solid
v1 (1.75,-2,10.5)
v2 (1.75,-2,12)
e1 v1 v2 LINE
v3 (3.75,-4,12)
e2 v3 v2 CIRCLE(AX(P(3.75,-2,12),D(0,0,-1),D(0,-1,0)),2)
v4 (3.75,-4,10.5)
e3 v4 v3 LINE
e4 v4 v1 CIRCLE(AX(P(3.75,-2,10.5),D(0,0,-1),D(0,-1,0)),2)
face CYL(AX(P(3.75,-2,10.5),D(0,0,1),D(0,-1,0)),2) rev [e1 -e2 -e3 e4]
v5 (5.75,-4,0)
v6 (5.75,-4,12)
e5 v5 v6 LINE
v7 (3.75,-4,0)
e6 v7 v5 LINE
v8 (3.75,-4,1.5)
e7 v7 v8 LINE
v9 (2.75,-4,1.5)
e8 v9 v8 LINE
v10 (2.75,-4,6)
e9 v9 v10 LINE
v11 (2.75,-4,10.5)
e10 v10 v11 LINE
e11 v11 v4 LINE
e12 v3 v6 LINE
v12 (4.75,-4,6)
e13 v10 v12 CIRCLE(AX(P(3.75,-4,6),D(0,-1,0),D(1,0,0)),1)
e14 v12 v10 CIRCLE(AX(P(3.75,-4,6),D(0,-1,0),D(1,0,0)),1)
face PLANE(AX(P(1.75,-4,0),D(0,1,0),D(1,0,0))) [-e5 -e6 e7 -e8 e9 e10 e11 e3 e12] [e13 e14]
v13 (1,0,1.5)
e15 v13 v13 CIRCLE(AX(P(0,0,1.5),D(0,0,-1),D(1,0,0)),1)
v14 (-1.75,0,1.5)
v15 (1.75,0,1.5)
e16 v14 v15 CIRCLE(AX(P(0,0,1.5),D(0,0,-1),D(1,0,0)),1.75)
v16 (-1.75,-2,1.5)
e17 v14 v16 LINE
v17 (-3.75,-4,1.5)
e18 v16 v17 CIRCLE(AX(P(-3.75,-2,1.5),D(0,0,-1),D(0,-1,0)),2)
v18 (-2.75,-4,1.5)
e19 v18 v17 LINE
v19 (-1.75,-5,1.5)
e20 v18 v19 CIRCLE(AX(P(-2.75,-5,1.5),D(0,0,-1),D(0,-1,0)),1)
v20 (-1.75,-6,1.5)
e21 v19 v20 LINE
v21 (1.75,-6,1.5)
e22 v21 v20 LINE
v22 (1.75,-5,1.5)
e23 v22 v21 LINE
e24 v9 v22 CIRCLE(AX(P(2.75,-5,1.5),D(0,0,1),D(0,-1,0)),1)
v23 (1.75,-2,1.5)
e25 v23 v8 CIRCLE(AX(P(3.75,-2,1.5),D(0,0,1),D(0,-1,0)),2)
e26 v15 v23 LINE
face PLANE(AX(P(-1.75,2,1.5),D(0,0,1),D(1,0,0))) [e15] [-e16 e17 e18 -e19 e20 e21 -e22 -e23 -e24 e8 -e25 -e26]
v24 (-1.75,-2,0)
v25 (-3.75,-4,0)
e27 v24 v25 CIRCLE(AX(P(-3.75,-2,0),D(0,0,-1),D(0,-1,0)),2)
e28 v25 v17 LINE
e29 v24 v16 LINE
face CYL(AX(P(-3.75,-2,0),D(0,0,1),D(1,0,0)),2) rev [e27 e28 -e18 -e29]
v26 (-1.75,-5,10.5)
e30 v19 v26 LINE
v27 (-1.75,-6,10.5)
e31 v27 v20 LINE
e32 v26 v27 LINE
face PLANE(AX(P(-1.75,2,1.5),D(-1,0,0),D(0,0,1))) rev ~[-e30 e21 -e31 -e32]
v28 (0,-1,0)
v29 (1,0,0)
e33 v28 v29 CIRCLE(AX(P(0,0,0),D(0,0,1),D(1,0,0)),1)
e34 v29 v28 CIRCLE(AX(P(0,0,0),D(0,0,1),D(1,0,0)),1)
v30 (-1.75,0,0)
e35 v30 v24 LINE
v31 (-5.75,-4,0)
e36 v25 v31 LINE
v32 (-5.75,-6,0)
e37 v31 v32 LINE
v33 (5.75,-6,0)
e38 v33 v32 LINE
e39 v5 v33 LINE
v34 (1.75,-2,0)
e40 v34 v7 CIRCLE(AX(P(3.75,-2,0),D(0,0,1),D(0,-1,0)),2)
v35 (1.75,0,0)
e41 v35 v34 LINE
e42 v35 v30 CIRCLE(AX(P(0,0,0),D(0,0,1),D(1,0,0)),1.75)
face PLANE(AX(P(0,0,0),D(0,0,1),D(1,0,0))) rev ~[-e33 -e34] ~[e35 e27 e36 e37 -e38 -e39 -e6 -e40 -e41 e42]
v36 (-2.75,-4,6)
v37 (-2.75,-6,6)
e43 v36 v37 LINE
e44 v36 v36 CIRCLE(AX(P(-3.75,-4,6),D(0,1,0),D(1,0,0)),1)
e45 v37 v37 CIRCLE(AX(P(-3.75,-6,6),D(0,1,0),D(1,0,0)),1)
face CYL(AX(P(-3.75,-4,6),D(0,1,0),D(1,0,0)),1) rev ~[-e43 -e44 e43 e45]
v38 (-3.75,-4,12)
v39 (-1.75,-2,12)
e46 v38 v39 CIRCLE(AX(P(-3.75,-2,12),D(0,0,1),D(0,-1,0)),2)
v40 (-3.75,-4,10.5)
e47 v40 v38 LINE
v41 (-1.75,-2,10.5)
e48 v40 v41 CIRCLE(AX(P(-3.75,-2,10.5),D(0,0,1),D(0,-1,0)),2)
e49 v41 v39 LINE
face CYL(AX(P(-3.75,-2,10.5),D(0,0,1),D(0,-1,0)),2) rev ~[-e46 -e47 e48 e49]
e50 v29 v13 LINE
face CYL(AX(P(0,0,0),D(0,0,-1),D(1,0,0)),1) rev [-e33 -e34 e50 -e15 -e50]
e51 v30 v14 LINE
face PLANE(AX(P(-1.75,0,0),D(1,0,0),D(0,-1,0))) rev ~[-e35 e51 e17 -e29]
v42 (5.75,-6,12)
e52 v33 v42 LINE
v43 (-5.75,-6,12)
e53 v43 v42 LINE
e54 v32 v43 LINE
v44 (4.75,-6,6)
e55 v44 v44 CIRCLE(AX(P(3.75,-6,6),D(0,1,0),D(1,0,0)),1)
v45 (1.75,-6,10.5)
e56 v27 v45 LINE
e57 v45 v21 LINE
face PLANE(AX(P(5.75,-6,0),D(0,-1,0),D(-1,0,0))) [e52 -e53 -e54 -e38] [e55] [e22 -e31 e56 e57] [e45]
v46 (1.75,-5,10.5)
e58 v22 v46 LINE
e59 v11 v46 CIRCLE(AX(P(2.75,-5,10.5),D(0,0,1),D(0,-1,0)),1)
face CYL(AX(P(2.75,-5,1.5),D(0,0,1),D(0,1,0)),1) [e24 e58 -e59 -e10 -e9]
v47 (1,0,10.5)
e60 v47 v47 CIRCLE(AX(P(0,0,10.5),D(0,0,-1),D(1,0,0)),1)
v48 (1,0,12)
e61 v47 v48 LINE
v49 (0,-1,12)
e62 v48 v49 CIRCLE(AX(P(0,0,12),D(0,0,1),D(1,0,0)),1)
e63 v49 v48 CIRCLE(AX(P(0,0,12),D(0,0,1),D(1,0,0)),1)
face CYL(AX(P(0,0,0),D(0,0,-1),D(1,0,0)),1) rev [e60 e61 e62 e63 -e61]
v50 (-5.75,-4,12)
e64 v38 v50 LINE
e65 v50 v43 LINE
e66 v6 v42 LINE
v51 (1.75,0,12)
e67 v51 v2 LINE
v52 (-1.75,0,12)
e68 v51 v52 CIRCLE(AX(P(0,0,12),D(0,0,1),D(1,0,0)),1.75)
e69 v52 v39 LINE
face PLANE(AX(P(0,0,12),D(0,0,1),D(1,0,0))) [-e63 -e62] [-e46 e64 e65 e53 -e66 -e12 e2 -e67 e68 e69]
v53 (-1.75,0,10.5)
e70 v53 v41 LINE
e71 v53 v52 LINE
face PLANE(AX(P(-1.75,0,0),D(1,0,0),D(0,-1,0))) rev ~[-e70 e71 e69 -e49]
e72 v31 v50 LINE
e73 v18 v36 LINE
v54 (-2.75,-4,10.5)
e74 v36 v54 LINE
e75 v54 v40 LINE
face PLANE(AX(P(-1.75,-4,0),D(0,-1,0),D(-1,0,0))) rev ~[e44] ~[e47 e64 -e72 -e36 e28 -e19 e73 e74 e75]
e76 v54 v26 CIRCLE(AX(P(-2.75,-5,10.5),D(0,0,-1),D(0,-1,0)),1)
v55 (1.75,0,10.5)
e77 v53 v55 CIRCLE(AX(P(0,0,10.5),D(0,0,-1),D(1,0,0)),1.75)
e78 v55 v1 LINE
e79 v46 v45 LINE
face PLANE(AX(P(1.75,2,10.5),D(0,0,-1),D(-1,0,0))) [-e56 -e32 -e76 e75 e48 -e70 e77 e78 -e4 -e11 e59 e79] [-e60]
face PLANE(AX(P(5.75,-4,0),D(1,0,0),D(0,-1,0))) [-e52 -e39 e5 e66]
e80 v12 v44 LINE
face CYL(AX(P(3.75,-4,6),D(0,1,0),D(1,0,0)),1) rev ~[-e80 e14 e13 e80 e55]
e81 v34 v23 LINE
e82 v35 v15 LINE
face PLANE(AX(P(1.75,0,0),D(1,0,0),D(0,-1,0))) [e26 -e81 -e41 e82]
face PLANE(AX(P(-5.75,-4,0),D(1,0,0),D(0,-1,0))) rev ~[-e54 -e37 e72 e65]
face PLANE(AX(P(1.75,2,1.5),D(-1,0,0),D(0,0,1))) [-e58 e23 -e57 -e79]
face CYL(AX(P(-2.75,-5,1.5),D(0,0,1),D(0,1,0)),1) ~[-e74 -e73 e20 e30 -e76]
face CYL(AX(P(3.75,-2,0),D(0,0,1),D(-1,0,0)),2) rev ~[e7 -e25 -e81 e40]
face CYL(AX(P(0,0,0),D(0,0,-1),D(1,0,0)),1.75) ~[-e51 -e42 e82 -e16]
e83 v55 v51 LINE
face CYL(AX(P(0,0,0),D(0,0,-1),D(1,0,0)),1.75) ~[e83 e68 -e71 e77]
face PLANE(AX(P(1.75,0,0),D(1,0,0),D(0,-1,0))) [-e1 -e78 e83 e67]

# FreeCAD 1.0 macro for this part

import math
import FreeCAD as App
import Part
import Sketcher
from FreeCAD import Vector


def edges_at(feature, points):
    """Names of the edges that pass closest to the given points."""
    edges = feature.Shape.Edges
    near = lambda p: min(range(len(edges)), key=lambda i: edges[i].distToShape(Part.Vertex(*p))[0])
    return sorted({f"Edge{near(p) + 1}" for p in points})


def add_polygon(sketch, points):
    """Adds a closed chain of lines whose ends are joined by coincident constraints."""
    first, n = sketch.GeometryCount, len(points)
    for a, b in zip(points, points[1:] + points[:1]):
        sketch.addGeometry(Part.LineSegment(App.Vector(*a, 0), App.Vector(*b, 0)), False)
    for i in range(n):
        sketch.addConstraint(Sketcher.Constraint("Coincident", first + i, 2, first + (i + 1) % n, 1))

doc = App.newDocument("Part")
body = doc.addObject("PartDesign::Body", "Body")

# Sketch on XY plane
sketch1 = doc.addObject("Sketcher::SketchObject", "Sketch")
body.addObject(sketch1)
sketch1.AttachmentSupport = (doc.XY_Plane, [""])
sketch1.MapMode = "FlatFace"
sketch1.addGeometry(Part.ArcOfCircle(Part.Circle(Vector(0, 0, 0), Vector(0, 0, 1), 1.8), math.radians(0), math.radians(180)), False)
sketch1.addGeometry(Part.LineSegment(Vector(-1.8, 0, 0), Vector(-1.8, -4, 0)), False)
sketch1.addGeometry(Part.LineSegment(Vector(-1.8, -4, 0), Vector(-5.8, -4, 0)), False)
sketch1.addGeometry(Part.LineSegment(Vector(-5.8, -4, 0), Vector(-5.8, -6, 0)), False)
sketch1.addGeometry(Part.LineSegment(Vector(-5.8, -6, 0), Vector(5.8, -6, 0)), False)
sketch1.addGeometry(Part.LineSegment(Vector(5.8, -6, 0), Vector(5.8, -4, 0)), False)
sketch1.addGeometry(Part.LineSegment(Vector(5.8, -4, 0), Vector(1.8, -4, 0)), False)
sketch1.addGeometry(Part.LineSegment(Vector(1.8, -4, 0), Vector(1.8, 0, 0)), False)
sketch1.addGeometry(Part.Circle(Vector(0, 0, 0), Vector(0, 0, 1), 1), False)
sketch1.addConstraint(Sketcher.Constraint("Tangent", 0, 2, 1, 1))
sketch1.addConstraint(Sketcher.Constraint("Coincident", 1, 2, 2, 1))
sketch1.addConstraint(Sketcher.Constraint("Coincident", 2, 2, 3, 1))
sketch1.addConstraint(Sketcher.Constraint("Coincident", 3, 2, 4, 1))
sketch1.addConstraint(Sketcher.Constraint("Coincident", 4, 2, 5, 1))
sketch1.addConstraint(Sketcher.Constraint("Coincident", 5, 2, 6, 1))
sketch1.addConstraint(Sketcher.Constraint("Coincident", 6, 2, 7, 1))
sketch1.addConstraint(Sketcher.Constraint("Tangent", 7, 2, 0, 1))
sketch1.addConstraint(Sketcher.Constraint("Vertical", 1))
sketch1.addConstraint(Sketcher.Constraint("Horizontal", 2))
sketch1.addConstraint(Sketcher.Constraint("Vertical", 3))
sketch1.addConstraint(Sketcher.Constraint("Horizontal", 4))
sketch1.addConstraint(Sketcher.Constraint("Vertical", 5))
sketch1.addConstraint(Sketcher.Constraint("Horizontal", 6))
sketch1.addConstraint(Sketcher.Constraint("Vertical", 7))
sketch1.addConstraint(Sketcher.Constraint("Coincident", 0, 3, -1, 1))
sketch1.addConstraint(Sketcher.Constraint("Coincident", 8, 3, -1, 1))
sketch1.addConstraint(Sketcher.Constraint("Symmetric", 2, 2, 5, 2, -2))
sketch1.addConstraint(Sketcher.Constraint("Equal", 6, 1))
sketch1.addConstraint(Sketcher.Constraint("Diameter", 8, 2.0))
sketch1.addConstraint(Sketcher.Constraint("DistanceX", 2, 2, 2, 1, 4.0))
sketch1.addConstraint(Sketcher.Constraint("DistanceY", 3, 2, 3, 1, 2.0))
sketch1.addConstraint(Sketcher.Constraint("Radius", 0, 1.75))
pad1 = doc.addObject("PartDesign::Pad", "Pad")
body.addObject(pad1)
pad1.Profile = sketch1
pad1.Length = 12

# Sketch on XZ plane
sketch2 = doc.addObject("Sketcher::SketchObject", "Sketch001")
body.addObject(sketch2)
sketch2.AttachmentSupport = (doc.XZ_Plane, [""])
sketch2.MapMode = "FlatFace"
sketch2.AttachmentOffset = App.Placement(Vector(0, 0, -2), App.Rotation())
add_polygon(sketch2, [(1.8, 10.5), (1.8, 1.5), (-1.8, 1.5), (-1.8, 10.5)])  # lines 0-3
sketch2.addConstraint(Sketcher.Constraint("Vertical", 0))
sketch2.addConstraint(Sketcher.Constraint("Horizontal", 1))
sketch2.addConstraint(Sketcher.Constraint("Vertical", 2))
sketch2.addConstraint(Sketcher.Constraint("Horizontal", 3))
sketch2.addConstraint(Sketcher.Constraint("DistanceY", 0, 2, 0, 1, 9.0))
sketch2.addConstraint(Sketcher.Constraint("DistanceX", 1, 2, 1, 1, 3.5))
sketch2.addConstraint(Sketcher.Constraint("DistanceY", -1, 1, 0, 2, 1.5))
sketch2.addConstraint(Sketcher.Constraint("DistanceX", -1, 1, 0, 2, 1.75))
pocket1 = doc.addObject("PartDesign::Pocket", "Pocket")
body.addObject(pocket1)
pocket1.Profile = sketch2
pocket1.Length = 12
pocket1.Reversed = True
doc.recompute()

fillet = doc.addObject("PartDesign::Fillet", "Fillet")
body.addObject(fillet)
fillet.Base = (pocket1, edges_at(pocket1, [
    (1.75, -4, 0.75),
    (1.75, -4, 11.25),
    (-1.75, -4, 0.75),
    (-1.75, -4, 11.25),
]))
fillet.Radius = 2
doc.recompute()

fillet2 = doc.addObject("PartDesign::Fillet", "Fillet001")
body.addObject(fillet2)
fillet2.Base = (fillet, edges_at(fillet, [(1.75, -4, 6), (-1.75, -4, 6)]))
fillet2.Radius = 1

# Sketch on XZ plane
sketch3 = doc.addObject("Sketcher::SketchObject", "Sketch002")
body.addObject(sketch3)
sketch3.AttachmentSupport = (doc.XZ_Plane, [""])
sketch3.MapMode = "FlatFace"
sketch3.AttachmentOffset = App.Placement(Vector(0, 0, 4), App.Rotation())
sketch3.addGeometry(Part.Circle(Vector(3.8, 6, 0), Vector(0, 0, 1), 1), False)
sketch3.addGeometry(Part.Circle(Vector(-3.8, 6, 0), Vector(0, 0, 1), 1), False)
sketch3.addConstraint(Sketcher.Constraint("Equal", 0, 1))
sketch3.addConstraint(Sketcher.Constraint("Symmetric", 0, 3, 1, 3, -2))
sketch3.addConstraint(Sketcher.Constraint("Diameter", 0, 2.0))
sketch3.addConstraint(Sketcher.Constraint("DistanceY", -1, 1, 0, 3, 6.0))
sketch3.addConstraint(Sketcher.Constraint("DistanceX", 1, 3, 0, 3, 7.5))
pocket2 = doc.addObject("PartDesign::Pocket", "Pocket001")
body.addObject(pocket2)
pocket2.Profile = sketch3
pocket2.Type = "ThroughAll"
pocket2.Reversed = True

doc.recompute()
